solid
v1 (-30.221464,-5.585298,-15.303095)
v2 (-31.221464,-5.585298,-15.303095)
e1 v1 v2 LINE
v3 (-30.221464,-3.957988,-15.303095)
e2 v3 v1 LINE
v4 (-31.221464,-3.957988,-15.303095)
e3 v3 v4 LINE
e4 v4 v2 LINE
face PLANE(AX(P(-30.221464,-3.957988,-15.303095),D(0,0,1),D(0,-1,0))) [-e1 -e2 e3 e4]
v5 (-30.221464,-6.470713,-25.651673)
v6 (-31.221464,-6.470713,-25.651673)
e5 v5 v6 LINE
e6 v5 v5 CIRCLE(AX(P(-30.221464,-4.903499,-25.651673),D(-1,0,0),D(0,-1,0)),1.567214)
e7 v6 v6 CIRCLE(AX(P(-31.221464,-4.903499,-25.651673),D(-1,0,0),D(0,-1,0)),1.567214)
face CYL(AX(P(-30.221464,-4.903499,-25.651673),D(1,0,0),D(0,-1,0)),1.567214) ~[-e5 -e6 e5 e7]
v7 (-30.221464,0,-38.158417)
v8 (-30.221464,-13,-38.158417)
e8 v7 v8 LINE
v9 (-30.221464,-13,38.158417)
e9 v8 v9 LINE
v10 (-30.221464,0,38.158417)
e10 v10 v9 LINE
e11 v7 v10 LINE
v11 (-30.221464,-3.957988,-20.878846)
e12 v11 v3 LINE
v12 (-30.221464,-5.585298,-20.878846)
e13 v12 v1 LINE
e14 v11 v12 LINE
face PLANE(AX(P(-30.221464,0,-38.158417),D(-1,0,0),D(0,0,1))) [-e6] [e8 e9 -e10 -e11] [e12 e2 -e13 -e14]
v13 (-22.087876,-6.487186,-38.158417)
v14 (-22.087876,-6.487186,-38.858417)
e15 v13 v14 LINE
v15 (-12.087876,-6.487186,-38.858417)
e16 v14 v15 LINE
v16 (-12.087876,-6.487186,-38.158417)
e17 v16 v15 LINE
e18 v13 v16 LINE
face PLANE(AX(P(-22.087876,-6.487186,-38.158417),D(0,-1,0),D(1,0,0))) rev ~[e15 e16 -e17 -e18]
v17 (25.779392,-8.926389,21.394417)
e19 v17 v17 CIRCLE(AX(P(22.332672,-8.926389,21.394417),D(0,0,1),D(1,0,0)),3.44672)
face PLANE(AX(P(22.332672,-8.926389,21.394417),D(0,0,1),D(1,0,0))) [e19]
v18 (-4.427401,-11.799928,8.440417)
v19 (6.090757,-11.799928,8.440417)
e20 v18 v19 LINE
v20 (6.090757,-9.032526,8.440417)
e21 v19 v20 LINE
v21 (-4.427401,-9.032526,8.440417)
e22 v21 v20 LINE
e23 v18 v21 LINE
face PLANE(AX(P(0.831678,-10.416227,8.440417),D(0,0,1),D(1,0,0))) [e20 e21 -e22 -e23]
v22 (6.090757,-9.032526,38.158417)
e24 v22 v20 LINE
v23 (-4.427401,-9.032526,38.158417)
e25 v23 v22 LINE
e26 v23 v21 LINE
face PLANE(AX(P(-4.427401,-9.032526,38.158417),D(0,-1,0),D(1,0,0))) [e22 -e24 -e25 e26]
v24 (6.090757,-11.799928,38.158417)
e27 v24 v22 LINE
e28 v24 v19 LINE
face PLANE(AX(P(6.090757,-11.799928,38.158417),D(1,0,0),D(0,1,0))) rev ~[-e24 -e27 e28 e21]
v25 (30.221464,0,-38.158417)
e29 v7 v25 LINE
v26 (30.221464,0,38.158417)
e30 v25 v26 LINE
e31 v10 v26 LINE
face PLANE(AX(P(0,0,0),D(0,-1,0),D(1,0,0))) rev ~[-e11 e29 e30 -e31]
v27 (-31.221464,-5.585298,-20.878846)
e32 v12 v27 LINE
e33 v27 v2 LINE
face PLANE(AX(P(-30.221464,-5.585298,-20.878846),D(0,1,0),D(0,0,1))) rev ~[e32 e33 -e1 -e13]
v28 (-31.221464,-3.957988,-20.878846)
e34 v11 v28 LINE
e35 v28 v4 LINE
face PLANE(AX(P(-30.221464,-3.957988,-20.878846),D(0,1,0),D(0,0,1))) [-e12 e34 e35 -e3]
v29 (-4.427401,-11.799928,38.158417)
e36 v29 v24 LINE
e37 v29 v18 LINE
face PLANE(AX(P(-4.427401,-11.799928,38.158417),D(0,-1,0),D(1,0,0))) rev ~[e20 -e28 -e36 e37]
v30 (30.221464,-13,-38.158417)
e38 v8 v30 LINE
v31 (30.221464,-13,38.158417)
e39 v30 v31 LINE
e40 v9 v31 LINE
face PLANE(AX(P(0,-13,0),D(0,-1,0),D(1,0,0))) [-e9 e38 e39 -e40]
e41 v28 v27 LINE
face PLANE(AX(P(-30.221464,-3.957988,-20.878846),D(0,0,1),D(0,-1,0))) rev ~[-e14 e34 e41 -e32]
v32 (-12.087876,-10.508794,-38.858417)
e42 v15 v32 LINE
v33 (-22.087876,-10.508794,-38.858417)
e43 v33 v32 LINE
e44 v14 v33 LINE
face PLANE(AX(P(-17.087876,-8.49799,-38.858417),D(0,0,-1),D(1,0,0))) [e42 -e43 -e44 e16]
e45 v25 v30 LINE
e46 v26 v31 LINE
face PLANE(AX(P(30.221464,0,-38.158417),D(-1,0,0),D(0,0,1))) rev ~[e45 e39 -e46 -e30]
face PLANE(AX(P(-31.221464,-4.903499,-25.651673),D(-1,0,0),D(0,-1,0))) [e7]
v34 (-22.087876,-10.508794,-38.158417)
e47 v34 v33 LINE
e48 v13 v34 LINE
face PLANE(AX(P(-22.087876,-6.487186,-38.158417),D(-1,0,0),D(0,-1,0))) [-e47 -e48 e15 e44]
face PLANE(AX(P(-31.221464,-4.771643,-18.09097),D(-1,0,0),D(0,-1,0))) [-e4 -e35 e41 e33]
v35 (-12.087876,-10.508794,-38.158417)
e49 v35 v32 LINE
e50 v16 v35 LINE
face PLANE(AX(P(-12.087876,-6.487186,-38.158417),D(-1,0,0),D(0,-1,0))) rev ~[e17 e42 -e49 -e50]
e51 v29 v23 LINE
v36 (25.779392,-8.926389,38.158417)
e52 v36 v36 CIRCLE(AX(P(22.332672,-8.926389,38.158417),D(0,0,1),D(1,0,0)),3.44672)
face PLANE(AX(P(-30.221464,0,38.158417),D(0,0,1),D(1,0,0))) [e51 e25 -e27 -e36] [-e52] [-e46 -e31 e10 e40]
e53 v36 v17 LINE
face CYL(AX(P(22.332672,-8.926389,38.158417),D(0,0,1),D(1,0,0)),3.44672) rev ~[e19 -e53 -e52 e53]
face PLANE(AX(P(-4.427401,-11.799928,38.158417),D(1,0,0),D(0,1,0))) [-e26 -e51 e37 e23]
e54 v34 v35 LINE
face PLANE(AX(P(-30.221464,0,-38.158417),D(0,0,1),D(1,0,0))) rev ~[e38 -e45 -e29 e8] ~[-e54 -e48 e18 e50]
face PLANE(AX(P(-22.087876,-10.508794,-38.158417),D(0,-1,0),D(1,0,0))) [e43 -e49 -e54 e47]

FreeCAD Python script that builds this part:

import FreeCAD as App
import Part
import Sketcher
Q = App.Units.Quantity


def add_polygon(sketch, points):
    """Adds a closed chain of lines whose ends are joined by coincident constraints."""
    first, n = sketch.GeometryCount, len(points)
    for a, b in zip(points, points[1:] + points[:1]):
        sketch.addGeometry(Part.LineSegment(App.Vector(*a, 0), App.Vector(*b, 0)), False)
    for i in range(n):
        sketch.addConstraint(Sketcher.Constraint("Coincident", first + i, 2, first + (i + 1) % n, 1))

doc = App.newDocument("Part")
body = doc.addObject("PartDesign::Body", "Body")

# Sketch on XZ plane
sketch1 = body.newObject("Sketcher::SketchObject", "Sketch")
sketch1.AttachmentSupport = (doc.getObject("XZ_Plane"), [""])
sketch1.MapMode = "FlatFace"
add_polygon(sketch1, [(-30.221464, 38.158417), (-30.221464, -38.158417), (30.221464, -38.158417), (30.221464, 38.158417)])  # lines 0-3
sketch1.addConstraint([
    Sketcher.Constraint("Vertical", 0),
    Sketcher.Constraint("Horizontal", 1),
    Sketcher.Constraint("Vertical", 2),
    Sketcher.Constraint("Horizontal", 3),
    Sketcher.Constraint("Symmetric", 0, 2, 2, 2, -1, 1),
    Sketcher.Constraint("DistanceX", 1, 1, 1, 2, Q("60.442928 mm")),
    Sketcher.Constraint("DistanceY", 0, 2, 0, 1, Q("76.316834 mm")),
])
pad1 = body.newObject("PartDesign::Pad", "Pad")
pad1.Profile = sketch1
pad1.Length = 13

# Sketch on XZ plane
sketch2 = body.newObject("Sketcher::SketchObject", "Sketch001")
sketch2.AttachmentSupport = (doc.getObject("XZ_Plane"), [""])
sketch2.MapMode = "FlatFace"
sketch2.addGeometry(Part.Circle(App.Vector(20.47102, 49.871981, 0), App.Vector(0, 0, 1), 4.501425), False)
sketch2.addConstraint([
    Sketcher.Constraint("Diameter", 0, Q("9.00285 mm")),
    Sketcher.Constraint("DistanceX", -1, 1, 0, 3, Q("20.47102 mm")),
    Sketcher.Constraint("DistanceY", -1, 1, 0, 3, Q("49.871981 mm")),
])
pocket1 = body.newObject("PartDesign::Pocket", "Pocket")
pocket1.Profile = sketch2
pocket1.Length = 7.874

# Sketch on XY plane
sketch3 = body.newObject("Sketcher::SketchObject", "Sketch002")
sketch3.AttachmentSupport = (doc.getObject("XY_Plane"), [""])
sketch3.MapMode = "FlatFace"
sketch3.AttachmentOffset = App.Placement(App.Vector(0, 0, 38.158417), App.Rotation())
sketch3.addGeometry(Part.Circle(App.Vector(22.332672, -8.926389, 0), App.Vector(0, 0, 1), 3.44672), False)
sketch3.addConstraint([
    Sketcher.Constraint("Diameter", 0, Q("6.89344 mm")),
    Sketcher.Constraint("DistanceX", -1, 1, 0, 3, Q("22.332672 mm")),
    Sketcher.Constraint("DistanceY", 0, 3, -1, 1, Q("8.926389 mm")),
])
pocket2 = body.newObject("PartDesign::Pocket", "Pocket001")
pocket2.Profile = sketch3
pocket2.Length = 16.764

# Sketch on XY plane
sketch4 = body.newObject("Sketcher::SketchObject", "Sketch003")
sketch4.AttachmentSupport = (doc.getObject("XY_Plane"), [""])
sketch4.MapMode = "FlatFace"
sketch4.AttachmentOffset = App.Placement(App.Vector(0, 0, -38.158417), App.Rotation())
add_polygon(sketch4, [(-22.087876, -10.508794), (-22.087876, -6.487186), (-12.087876, -6.487186), (-12.087876, -10.508794)])  # lines 0-3
sketch4.addConstraint([
    Sketcher.Constraint("Vertical", 0),
    Sketcher.Constraint("Horizontal", 1),
    Sketcher.Constraint("Vertical", 2),
    Sketcher.Constraint("Horizontal", 3),
    Sketcher.Constraint("DistanceX", 1, 1, 1, 2, Q("10 mm")),
    Sketcher.Constraint("DistanceY", 0, 1, 0, 2, Q("4.021608 mm")),
    Sketcher.Constraint("DistanceX", 0, 2, -1, 1, Q("22.087876 mm")),
    Sketcher.Constraint("DistanceY", 0, 2, -1, 1, Q("6.487186 mm")),
])
pad2 = body.newObject("PartDesign::Pad", "Pad001")
pad2.Profile = sketch4
pad2.Length = 0.7
pad2.Reversed = True

# Sketch on XY plane
sketch5 = body.newObject("Sketcher::SketchObject", "Sketch004")
sketch5.AttachmentSupport = (doc.getObject("XY_Plane"), [""])
sketch5.MapMode = "FlatFace"
sketch5.AttachmentOffset = App.Placement(App.Vector(0, 0, 38.158417), App.Rotation())
add_polygon(sketch5, [(-5.568824, -9.320761), (-5.568824, -11.629271), (6.51968, -11.629271), (6.51968, -9.320761)])  # lines 0-3
sketch5.addConstraint([
    Sketcher.Constraint("Vertical", 0),
    Sketcher.Constraint("Horizontal", 1),
    Sketcher.Constraint("Vertical", 2),
    Sketcher.Constraint("Horizontal", 3),
    Sketcher.Constraint("DistanceY", 0, 2, 0, 1, Q("2.308511 mm")),
    Sketcher.Constraint("DistanceX", 1, 1, 1, 2, Q("12.088504 mm")),
    Sketcher.Constraint("DistanceY", 0, 2, -1, 1, Q("11.629271 mm")),
    Sketcher.Constraint("DistanceX", -1, 1, 1, 2, Q("6.51968 mm")),
])
pad3 = body.newObject("PartDesign::Pad", "Pad002")
pad3.Profile = sketch5
pad3.Length = 7.874
pad3.Reversed = True

# Sketch on XY plane
sketch6 = body.newObject("Sketcher::SketchObject", "Sketch005")
sketch6.AttachmentSupport = (doc.getObject("XY_Plane"), [""])
sketch6.MapMode = "FlatFace"
sketch6.AttachmentOffset = App.Placement(App.Vector(0, 0, 38.158417), App.Rotation())
add_polygon(sketch6, [(-6.288279, -7.648733), (-6.288279, -10.322221), (3.711721, -10.322221), (3.711721, -7.648733)])  # lines 0-3
sketch6.addConstraint([
    Sketcher.Constraint("Vertical", 0),
    Sketcher.Constraint("Horizontal", 1),
    Sketcher.Constraint("Vertical", 2),
    Sketcher.Constraint("Horizontal", 3),
    Sketcher.Constraint("DistanceX", 1, 1, 1, 2, Q("10 mm")),
    Sketcher.Constraint("DistanceY", 0, 2, 0, 1, Q("2.673487 mm")),
    Sketcher.Constraint("DistanceX", 0, 2, -1, 1, Q("6.288279 mm")),
    Sketcher.Constraint("DistanceY", 0, 2, -1, 1, Q("10.322221 mm")),
])
pad4 = body.newObject("PartDesign::Pad", "Pad003")
pad4.Profile = sketch6
pad4.Length = 8.636
pad4.Reversed = True

# Sketch on XY plane
sketch7 = body.newObject("Sketcher::SketchObject", "Sketch006")
sketch7.AttachmentSupport = (doc.getObject("XY_Plane"), [""])
sketch7.MapMode = "FlatFace"
sketch7.AttachmentOffset = App.Placement(App.Vector(0, 0, 38.158417), App.Rotation())
add_polygon(sketch7, [(-4.427401, -9.032526), (-4.427401, -11.799928), (6.090757, -11.799928), (6.090757, -9.032526)])  # lines 0-3
sketch7.addConstraint([
    Sketcher.Constraint("Vertical", 0),
    Sketcher.Constraint("Horizontal", 1),
    Sketcher.Constraint("Vertical", 2),
    Sketcher.Constraint("Horizontal", 3),
    Sketcher.Constraint("DistanceY", 0, 2, 0, 1, Q("2.767401 mm")),
    Sketcher.Constraint("DistanceX", 0, 2, -1, 1, Q("4.427401 mm")),
    Sketcher.Constraint("DistanceX", 1, 1, 1, 2, Q("10.518157 mm")),
    Sketcher.Constraint("DistanceY", 0, 2, -1, 1, Q("11.799928 mm")),
])
pocket3 = body.newObject("PartDesign::Pocket", "Pocket002")
pocket3.Profile = sketch7
pocket3.Length = 29.718

# Sketch on YZ plane
sketch8 = body.newObject("Sketcher::SketchObject", "Sketch007")
sketch8.AttachmentSupport = (doc.getObject("YZ_Plane"), [""])
sketch8.MapMode = "FlatFace"
sketch8.AttachmentOffset = App.Placement(App.Vector(0, 0, -30.221464), App.Rotation())
sketch8.addGeometry(Part.Circle(App.Vector(-4.903499, -25.651673, 0), App.Vector(0, 0, 1), 1.567214), False)
sketch8.addConstraint([
    Sketcher.Constraint("Diameter", 0, Q("3.134428 mm")),
    Sketcher.Constraint("DistanceX", 0, 3, -1, 1, Q("4.903499 mm")),
    Sketcher.Constraint("DistanceY", 0, 3, -1, 1, Q("25.651673 mm")),
])
pad5 = body.newObject("PartDesign::Pad", "Pad004")
pad5.Profile = sketch8
pad5.Length = 1
pad5.Reversed = True

# Sketch on YZ plane
sketch9 = body.newObject("Sketcher::SketchObject", "Sketch008")
sketch9.AttachmentSupport = (doc.getObject("YZ_Plane"), [""])
sketch9.MapMode = "FlatFace"
sketch9.AttachmentOffset = App.Placement(App.Vector(0, 0, -30.221464), App.Rotation())
add_polygon(sketch9, [(-3.957988, -15.303095), (-3.957988, -20.878846), (-5.585298, -20.878846), (-5.585298, -15.303095)])  # lines 0-3
sketch9.addConstraint([
    Sketcher.Constraint("Vertical", 0),
    Sketcher.Constraint("Horizontal", 1),
    Sketcher.Constraint("Vertical", 2),
    Sketcher.Constraint("Horizontal", 3),
    Sketcher.Constraint("DistanceX", 1, 2, 1, 1, Q("1.627309 mm")),
    Sketcher.Constraint("DistanceY", 0, 2, 0, 1, Q("5.575751 mm")),
    Sketcher.Constraint("DistanceX", 0, 2, -1, 1, Q("3.957988 mm")),
    Sketcher.Constraint("DistanceY", 0, 2, -1, 1, Q("20.878846 mm")),
])
pad6 = body.newObject("PartDesign::Pad", "Pad005")
pad6.Profile = sketch9
pad6.Length = 1
pad6.Reversed = True

doc.recompute()
